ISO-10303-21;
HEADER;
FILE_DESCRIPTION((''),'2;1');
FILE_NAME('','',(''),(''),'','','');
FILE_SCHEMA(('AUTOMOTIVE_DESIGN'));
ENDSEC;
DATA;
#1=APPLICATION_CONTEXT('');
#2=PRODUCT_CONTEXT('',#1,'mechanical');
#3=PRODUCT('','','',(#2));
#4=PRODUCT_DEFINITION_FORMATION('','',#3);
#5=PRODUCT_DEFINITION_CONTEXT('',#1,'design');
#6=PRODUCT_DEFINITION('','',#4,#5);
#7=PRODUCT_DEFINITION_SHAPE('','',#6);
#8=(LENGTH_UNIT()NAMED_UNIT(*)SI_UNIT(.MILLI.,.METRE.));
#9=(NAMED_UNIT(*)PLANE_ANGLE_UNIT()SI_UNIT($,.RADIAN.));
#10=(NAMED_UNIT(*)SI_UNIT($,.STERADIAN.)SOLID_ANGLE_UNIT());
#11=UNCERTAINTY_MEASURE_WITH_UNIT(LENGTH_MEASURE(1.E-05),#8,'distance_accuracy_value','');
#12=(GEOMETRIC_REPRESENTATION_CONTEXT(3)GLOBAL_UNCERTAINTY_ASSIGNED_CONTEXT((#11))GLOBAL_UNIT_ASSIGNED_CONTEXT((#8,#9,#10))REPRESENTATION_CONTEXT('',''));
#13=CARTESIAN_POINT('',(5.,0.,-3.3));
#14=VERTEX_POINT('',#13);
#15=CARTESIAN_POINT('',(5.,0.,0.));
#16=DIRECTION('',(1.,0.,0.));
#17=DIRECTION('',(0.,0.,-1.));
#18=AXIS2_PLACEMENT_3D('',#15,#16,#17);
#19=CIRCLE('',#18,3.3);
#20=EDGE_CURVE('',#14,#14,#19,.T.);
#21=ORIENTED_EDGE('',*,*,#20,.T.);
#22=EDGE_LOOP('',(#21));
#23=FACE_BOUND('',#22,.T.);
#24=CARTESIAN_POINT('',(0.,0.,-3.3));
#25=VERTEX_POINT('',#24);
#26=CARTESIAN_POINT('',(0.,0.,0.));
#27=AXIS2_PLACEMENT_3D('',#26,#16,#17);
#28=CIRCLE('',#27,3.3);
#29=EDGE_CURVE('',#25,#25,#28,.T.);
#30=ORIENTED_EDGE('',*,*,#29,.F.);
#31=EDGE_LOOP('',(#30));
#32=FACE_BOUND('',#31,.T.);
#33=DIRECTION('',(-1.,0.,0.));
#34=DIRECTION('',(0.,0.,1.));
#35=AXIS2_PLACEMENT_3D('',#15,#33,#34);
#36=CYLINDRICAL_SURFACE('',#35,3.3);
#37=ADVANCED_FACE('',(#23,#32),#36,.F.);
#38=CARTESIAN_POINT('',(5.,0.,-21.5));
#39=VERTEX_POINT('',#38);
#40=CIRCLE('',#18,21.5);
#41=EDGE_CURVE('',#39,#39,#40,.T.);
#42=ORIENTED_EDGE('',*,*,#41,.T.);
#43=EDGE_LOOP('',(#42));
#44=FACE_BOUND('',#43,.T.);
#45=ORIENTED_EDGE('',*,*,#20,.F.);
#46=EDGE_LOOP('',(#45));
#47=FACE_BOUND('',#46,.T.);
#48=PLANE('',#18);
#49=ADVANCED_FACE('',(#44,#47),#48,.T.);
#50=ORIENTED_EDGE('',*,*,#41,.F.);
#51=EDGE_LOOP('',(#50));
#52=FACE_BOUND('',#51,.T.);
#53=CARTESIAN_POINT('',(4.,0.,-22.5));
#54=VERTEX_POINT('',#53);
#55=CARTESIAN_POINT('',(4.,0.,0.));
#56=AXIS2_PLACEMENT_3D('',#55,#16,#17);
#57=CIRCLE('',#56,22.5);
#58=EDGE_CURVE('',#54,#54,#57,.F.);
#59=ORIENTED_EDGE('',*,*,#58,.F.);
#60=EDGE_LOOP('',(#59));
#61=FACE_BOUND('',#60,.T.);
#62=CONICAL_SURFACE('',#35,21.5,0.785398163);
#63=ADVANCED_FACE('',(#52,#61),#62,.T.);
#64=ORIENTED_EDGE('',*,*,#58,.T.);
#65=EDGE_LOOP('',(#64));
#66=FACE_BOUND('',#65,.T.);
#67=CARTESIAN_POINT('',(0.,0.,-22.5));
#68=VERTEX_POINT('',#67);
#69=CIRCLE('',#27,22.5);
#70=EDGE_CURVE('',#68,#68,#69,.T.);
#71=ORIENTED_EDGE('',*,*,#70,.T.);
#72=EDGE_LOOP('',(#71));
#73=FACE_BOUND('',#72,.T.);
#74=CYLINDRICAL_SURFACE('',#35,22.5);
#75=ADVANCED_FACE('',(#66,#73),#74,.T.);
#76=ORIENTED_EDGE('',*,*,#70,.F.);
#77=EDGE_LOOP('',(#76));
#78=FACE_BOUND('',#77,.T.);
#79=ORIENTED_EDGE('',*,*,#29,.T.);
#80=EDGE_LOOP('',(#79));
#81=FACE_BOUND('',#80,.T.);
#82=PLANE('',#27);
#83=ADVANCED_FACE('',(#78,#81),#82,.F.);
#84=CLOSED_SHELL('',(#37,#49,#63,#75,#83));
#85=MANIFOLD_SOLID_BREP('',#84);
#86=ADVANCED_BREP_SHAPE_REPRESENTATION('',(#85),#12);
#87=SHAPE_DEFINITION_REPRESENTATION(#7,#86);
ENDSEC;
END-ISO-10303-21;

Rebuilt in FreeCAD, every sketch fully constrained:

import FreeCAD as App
import Part
import Sketcher

V = App.Vector
Q = App.Units.Quantity


def edges_at(feature, points):
    """Names of the edges that pass closest to the given points."""
    edges = feature.Shape.Edges
    near = lambda p: min(range(len(edges)), key=lambda i: edges[i].distToShape(Part.Vertex(*p))[0])
    return sorted({f"Edge{near(p) + 1}" for p in points})

doc = App.newDocument("Part")
body = doc.addObject("PartDesign::Body", "Body")

sketch1 = doc.addObject("Sketcher::SketchObject", "Sketch")
body.addObject(sketch1)
sketch1.AttachmentSupport = (doc.YZ_Plane, [""])
sketch1.MapMode = "FlatFace"
sketch1.addGeometry([
    Part.Circle(V(0, 0, 0), V(0, 0, 1), 22.5),
    Part.Circle(V(0, 0, 0), V(0, 0, 1), 3.3),
], False)
sketch1.addConstraint([
    Sketcher.Constraint("Coincident", 0, 3, -1, 1),
    Sketcher.Constraint("Coincident", 1, 3, -1, 1),
    Sketcher.Constraint("Diameter", 0, Q("45 mm")),
    Sketcher.Constraint("Diameter", 1, Q("6.6 mm")),
])
pad1 = doc.addObject("PartDesign::Pad", "Pad")
body.addObject(pad1)
pad1.Profile = sketch1
pad1.Length = 5
doc.recompute()

chamfer = doc.addObject("PartDesign::Chamfer", "Chamfer")
body.addObject(chamfer)
chamfer.Base = (pad1, edges_at(pad1, [(5, 0, 22.5)]))
chamfer.Size = 1

doc.recompute()
